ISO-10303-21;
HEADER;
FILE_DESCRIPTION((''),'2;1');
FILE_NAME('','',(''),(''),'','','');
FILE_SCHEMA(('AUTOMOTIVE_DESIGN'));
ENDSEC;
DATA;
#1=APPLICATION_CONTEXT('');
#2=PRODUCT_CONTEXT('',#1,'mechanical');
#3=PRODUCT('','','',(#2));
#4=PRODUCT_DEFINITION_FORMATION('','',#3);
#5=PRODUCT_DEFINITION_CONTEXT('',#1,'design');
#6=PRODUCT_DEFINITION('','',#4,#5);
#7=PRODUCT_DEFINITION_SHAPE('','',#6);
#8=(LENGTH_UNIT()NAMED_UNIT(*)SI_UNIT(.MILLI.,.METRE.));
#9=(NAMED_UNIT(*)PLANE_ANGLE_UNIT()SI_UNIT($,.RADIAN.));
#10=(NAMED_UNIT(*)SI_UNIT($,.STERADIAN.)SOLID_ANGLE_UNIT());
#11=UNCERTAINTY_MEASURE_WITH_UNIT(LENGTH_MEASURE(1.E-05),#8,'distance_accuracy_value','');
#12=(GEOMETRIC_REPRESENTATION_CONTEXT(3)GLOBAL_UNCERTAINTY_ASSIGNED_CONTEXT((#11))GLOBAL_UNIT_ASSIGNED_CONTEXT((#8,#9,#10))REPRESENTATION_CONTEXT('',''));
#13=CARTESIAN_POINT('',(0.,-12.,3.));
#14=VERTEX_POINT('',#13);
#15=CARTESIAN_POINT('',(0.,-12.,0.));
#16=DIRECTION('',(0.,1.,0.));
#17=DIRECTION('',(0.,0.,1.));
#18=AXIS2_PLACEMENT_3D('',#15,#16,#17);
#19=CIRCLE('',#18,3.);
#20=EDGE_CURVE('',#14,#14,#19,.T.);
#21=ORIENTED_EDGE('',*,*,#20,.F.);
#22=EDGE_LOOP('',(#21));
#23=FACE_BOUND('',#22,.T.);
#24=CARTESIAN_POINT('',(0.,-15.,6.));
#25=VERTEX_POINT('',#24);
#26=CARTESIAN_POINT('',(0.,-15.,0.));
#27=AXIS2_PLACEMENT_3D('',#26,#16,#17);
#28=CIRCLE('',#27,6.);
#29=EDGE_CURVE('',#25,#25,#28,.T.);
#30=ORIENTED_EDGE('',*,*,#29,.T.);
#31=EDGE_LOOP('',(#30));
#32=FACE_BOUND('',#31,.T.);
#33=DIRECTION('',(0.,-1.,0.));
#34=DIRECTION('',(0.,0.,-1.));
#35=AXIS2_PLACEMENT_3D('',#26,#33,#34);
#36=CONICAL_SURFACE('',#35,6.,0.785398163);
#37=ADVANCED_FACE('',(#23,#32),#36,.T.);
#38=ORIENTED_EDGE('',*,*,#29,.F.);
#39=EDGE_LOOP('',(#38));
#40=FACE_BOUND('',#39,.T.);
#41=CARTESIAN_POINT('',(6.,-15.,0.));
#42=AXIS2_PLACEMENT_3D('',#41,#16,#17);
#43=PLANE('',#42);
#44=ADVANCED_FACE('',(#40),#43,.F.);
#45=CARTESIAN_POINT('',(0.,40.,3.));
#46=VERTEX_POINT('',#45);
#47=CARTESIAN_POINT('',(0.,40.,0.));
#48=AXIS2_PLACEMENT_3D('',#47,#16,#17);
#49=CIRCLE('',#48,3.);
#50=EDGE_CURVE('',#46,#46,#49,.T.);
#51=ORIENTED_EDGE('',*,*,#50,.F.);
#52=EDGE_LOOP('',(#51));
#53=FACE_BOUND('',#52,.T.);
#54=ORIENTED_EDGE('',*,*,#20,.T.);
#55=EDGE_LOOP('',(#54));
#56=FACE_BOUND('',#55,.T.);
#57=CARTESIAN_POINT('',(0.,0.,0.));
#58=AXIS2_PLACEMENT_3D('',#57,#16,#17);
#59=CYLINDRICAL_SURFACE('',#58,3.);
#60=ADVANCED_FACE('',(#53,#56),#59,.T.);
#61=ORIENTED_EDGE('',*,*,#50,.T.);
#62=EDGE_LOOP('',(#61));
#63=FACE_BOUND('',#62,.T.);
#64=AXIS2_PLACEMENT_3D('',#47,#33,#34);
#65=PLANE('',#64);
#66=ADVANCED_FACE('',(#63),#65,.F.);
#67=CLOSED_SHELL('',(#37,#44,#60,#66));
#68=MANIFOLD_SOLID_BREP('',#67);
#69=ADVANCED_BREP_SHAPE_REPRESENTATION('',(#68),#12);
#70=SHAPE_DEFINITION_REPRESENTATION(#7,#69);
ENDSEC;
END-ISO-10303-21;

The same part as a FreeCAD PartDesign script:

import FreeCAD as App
import Part
import Sketcher

V = App.Vector
Q = App.Units.Quantity


def add_polygon(sketch, points):
    """Adds a closed chain of lines whose ends are joined by coincident constraints."""
    first, n = sketch.GeometryCount, len(points)
    for a, b in zip(points, points[1:] + points[:1]):
        sketch.addGeometry(Part.LineSegment(App.Vector(*a, 0), App.Vector(*b, 0)), False)
    for i in range(n):
        sketch.addConstraint(Sketcher.Constraint("Coincident", first + i, 2, first + (i + 1) % n, 1))

doc = App.newDocument("Part")
params = doc.addObject("Spreadsheet::Sheet", "Params")
for row, (alias, value) in enumerate([
    ("sketch1_width", "3 mm"),
    ("sketch1_width2", "6 mm"),
    ("sketch1_height", "52 mm"),
    ("sketch1_height2", "55 mm"),
    ("revolution_angle", "360 deg"),
], start=1):
    params.set(f"A{row}", alias)
    params.set(f"B{row}", "=" + value)
    params.setAlias(f"B{row}", alias)

body = doc.addObject("PartDesign::Body", "Body")

sketch1 = body.newObject("Sketcher::SketchObject", "Sketch")
sketch1.AttachmentSupport = (doc.getObject("XY_Plane"), [""])
sketch1.MapMode = "FlatFace"
add_polygon(sketch1, [(3, -12), (3, 40), (0, 40), (0, -15), (6, -15)])
sketch1.addConstraint(Sketcher.Constraint("Vertical", 0))
sketch1.addConstraint(Sketcher.Constraint("Horizontal", 1))
sketch1.addConstraint(Sketcher.Constraint("Vertical", 2))
sketch1.addConstraint(Sketcher.Constraint("Horizontal", 3))
sketch1.addConstraint(Sketcher.Constraint("PointOnObject", 1, 2, -2))
sketch1.addConstraint(Sketcher.Constraint("DistanceX", 1, 2, 1, 1, Q("3 mm")))
sketch1.addConstraint(Sketcher.Constraint("DistanceX", 3, 1, 3, 2, Q("6 mm")))
sketch1.addConstraint(Sketcher.Constraint("DistanceY", 0, 1, 0, 2, Q("52 mm")))
sketch1.addConstraint(Sketcher.Constraint("DistanceY", 2, 2, 2, 1, Q("55 mm")))
sketch1.addConstraint(Sketcher.Constraint("DistanceY", -1, 1, 0, 2, Q("40 mm")))
sketch1.setExpression("Constraints[10]", "Params.sketch1_width")
sketch1.setExpression("Constraints[11]", "Params.sketch1_width2")
sketch1.setExpression("Constraints[12]", "Params.sketch1_height")
sketch1.setExpression("Constraints[13]", "Params.sketch1_height2")
revolution = body.newObject("PartDesign::Revolution", "Revolution")
revolution.Profile = sketch1
revolution.ReferenceAxis = (sketch1, ["V_Axis"])
revolution.setExpression("Angle", "Params.revolution_angle")

doc.recompute()
